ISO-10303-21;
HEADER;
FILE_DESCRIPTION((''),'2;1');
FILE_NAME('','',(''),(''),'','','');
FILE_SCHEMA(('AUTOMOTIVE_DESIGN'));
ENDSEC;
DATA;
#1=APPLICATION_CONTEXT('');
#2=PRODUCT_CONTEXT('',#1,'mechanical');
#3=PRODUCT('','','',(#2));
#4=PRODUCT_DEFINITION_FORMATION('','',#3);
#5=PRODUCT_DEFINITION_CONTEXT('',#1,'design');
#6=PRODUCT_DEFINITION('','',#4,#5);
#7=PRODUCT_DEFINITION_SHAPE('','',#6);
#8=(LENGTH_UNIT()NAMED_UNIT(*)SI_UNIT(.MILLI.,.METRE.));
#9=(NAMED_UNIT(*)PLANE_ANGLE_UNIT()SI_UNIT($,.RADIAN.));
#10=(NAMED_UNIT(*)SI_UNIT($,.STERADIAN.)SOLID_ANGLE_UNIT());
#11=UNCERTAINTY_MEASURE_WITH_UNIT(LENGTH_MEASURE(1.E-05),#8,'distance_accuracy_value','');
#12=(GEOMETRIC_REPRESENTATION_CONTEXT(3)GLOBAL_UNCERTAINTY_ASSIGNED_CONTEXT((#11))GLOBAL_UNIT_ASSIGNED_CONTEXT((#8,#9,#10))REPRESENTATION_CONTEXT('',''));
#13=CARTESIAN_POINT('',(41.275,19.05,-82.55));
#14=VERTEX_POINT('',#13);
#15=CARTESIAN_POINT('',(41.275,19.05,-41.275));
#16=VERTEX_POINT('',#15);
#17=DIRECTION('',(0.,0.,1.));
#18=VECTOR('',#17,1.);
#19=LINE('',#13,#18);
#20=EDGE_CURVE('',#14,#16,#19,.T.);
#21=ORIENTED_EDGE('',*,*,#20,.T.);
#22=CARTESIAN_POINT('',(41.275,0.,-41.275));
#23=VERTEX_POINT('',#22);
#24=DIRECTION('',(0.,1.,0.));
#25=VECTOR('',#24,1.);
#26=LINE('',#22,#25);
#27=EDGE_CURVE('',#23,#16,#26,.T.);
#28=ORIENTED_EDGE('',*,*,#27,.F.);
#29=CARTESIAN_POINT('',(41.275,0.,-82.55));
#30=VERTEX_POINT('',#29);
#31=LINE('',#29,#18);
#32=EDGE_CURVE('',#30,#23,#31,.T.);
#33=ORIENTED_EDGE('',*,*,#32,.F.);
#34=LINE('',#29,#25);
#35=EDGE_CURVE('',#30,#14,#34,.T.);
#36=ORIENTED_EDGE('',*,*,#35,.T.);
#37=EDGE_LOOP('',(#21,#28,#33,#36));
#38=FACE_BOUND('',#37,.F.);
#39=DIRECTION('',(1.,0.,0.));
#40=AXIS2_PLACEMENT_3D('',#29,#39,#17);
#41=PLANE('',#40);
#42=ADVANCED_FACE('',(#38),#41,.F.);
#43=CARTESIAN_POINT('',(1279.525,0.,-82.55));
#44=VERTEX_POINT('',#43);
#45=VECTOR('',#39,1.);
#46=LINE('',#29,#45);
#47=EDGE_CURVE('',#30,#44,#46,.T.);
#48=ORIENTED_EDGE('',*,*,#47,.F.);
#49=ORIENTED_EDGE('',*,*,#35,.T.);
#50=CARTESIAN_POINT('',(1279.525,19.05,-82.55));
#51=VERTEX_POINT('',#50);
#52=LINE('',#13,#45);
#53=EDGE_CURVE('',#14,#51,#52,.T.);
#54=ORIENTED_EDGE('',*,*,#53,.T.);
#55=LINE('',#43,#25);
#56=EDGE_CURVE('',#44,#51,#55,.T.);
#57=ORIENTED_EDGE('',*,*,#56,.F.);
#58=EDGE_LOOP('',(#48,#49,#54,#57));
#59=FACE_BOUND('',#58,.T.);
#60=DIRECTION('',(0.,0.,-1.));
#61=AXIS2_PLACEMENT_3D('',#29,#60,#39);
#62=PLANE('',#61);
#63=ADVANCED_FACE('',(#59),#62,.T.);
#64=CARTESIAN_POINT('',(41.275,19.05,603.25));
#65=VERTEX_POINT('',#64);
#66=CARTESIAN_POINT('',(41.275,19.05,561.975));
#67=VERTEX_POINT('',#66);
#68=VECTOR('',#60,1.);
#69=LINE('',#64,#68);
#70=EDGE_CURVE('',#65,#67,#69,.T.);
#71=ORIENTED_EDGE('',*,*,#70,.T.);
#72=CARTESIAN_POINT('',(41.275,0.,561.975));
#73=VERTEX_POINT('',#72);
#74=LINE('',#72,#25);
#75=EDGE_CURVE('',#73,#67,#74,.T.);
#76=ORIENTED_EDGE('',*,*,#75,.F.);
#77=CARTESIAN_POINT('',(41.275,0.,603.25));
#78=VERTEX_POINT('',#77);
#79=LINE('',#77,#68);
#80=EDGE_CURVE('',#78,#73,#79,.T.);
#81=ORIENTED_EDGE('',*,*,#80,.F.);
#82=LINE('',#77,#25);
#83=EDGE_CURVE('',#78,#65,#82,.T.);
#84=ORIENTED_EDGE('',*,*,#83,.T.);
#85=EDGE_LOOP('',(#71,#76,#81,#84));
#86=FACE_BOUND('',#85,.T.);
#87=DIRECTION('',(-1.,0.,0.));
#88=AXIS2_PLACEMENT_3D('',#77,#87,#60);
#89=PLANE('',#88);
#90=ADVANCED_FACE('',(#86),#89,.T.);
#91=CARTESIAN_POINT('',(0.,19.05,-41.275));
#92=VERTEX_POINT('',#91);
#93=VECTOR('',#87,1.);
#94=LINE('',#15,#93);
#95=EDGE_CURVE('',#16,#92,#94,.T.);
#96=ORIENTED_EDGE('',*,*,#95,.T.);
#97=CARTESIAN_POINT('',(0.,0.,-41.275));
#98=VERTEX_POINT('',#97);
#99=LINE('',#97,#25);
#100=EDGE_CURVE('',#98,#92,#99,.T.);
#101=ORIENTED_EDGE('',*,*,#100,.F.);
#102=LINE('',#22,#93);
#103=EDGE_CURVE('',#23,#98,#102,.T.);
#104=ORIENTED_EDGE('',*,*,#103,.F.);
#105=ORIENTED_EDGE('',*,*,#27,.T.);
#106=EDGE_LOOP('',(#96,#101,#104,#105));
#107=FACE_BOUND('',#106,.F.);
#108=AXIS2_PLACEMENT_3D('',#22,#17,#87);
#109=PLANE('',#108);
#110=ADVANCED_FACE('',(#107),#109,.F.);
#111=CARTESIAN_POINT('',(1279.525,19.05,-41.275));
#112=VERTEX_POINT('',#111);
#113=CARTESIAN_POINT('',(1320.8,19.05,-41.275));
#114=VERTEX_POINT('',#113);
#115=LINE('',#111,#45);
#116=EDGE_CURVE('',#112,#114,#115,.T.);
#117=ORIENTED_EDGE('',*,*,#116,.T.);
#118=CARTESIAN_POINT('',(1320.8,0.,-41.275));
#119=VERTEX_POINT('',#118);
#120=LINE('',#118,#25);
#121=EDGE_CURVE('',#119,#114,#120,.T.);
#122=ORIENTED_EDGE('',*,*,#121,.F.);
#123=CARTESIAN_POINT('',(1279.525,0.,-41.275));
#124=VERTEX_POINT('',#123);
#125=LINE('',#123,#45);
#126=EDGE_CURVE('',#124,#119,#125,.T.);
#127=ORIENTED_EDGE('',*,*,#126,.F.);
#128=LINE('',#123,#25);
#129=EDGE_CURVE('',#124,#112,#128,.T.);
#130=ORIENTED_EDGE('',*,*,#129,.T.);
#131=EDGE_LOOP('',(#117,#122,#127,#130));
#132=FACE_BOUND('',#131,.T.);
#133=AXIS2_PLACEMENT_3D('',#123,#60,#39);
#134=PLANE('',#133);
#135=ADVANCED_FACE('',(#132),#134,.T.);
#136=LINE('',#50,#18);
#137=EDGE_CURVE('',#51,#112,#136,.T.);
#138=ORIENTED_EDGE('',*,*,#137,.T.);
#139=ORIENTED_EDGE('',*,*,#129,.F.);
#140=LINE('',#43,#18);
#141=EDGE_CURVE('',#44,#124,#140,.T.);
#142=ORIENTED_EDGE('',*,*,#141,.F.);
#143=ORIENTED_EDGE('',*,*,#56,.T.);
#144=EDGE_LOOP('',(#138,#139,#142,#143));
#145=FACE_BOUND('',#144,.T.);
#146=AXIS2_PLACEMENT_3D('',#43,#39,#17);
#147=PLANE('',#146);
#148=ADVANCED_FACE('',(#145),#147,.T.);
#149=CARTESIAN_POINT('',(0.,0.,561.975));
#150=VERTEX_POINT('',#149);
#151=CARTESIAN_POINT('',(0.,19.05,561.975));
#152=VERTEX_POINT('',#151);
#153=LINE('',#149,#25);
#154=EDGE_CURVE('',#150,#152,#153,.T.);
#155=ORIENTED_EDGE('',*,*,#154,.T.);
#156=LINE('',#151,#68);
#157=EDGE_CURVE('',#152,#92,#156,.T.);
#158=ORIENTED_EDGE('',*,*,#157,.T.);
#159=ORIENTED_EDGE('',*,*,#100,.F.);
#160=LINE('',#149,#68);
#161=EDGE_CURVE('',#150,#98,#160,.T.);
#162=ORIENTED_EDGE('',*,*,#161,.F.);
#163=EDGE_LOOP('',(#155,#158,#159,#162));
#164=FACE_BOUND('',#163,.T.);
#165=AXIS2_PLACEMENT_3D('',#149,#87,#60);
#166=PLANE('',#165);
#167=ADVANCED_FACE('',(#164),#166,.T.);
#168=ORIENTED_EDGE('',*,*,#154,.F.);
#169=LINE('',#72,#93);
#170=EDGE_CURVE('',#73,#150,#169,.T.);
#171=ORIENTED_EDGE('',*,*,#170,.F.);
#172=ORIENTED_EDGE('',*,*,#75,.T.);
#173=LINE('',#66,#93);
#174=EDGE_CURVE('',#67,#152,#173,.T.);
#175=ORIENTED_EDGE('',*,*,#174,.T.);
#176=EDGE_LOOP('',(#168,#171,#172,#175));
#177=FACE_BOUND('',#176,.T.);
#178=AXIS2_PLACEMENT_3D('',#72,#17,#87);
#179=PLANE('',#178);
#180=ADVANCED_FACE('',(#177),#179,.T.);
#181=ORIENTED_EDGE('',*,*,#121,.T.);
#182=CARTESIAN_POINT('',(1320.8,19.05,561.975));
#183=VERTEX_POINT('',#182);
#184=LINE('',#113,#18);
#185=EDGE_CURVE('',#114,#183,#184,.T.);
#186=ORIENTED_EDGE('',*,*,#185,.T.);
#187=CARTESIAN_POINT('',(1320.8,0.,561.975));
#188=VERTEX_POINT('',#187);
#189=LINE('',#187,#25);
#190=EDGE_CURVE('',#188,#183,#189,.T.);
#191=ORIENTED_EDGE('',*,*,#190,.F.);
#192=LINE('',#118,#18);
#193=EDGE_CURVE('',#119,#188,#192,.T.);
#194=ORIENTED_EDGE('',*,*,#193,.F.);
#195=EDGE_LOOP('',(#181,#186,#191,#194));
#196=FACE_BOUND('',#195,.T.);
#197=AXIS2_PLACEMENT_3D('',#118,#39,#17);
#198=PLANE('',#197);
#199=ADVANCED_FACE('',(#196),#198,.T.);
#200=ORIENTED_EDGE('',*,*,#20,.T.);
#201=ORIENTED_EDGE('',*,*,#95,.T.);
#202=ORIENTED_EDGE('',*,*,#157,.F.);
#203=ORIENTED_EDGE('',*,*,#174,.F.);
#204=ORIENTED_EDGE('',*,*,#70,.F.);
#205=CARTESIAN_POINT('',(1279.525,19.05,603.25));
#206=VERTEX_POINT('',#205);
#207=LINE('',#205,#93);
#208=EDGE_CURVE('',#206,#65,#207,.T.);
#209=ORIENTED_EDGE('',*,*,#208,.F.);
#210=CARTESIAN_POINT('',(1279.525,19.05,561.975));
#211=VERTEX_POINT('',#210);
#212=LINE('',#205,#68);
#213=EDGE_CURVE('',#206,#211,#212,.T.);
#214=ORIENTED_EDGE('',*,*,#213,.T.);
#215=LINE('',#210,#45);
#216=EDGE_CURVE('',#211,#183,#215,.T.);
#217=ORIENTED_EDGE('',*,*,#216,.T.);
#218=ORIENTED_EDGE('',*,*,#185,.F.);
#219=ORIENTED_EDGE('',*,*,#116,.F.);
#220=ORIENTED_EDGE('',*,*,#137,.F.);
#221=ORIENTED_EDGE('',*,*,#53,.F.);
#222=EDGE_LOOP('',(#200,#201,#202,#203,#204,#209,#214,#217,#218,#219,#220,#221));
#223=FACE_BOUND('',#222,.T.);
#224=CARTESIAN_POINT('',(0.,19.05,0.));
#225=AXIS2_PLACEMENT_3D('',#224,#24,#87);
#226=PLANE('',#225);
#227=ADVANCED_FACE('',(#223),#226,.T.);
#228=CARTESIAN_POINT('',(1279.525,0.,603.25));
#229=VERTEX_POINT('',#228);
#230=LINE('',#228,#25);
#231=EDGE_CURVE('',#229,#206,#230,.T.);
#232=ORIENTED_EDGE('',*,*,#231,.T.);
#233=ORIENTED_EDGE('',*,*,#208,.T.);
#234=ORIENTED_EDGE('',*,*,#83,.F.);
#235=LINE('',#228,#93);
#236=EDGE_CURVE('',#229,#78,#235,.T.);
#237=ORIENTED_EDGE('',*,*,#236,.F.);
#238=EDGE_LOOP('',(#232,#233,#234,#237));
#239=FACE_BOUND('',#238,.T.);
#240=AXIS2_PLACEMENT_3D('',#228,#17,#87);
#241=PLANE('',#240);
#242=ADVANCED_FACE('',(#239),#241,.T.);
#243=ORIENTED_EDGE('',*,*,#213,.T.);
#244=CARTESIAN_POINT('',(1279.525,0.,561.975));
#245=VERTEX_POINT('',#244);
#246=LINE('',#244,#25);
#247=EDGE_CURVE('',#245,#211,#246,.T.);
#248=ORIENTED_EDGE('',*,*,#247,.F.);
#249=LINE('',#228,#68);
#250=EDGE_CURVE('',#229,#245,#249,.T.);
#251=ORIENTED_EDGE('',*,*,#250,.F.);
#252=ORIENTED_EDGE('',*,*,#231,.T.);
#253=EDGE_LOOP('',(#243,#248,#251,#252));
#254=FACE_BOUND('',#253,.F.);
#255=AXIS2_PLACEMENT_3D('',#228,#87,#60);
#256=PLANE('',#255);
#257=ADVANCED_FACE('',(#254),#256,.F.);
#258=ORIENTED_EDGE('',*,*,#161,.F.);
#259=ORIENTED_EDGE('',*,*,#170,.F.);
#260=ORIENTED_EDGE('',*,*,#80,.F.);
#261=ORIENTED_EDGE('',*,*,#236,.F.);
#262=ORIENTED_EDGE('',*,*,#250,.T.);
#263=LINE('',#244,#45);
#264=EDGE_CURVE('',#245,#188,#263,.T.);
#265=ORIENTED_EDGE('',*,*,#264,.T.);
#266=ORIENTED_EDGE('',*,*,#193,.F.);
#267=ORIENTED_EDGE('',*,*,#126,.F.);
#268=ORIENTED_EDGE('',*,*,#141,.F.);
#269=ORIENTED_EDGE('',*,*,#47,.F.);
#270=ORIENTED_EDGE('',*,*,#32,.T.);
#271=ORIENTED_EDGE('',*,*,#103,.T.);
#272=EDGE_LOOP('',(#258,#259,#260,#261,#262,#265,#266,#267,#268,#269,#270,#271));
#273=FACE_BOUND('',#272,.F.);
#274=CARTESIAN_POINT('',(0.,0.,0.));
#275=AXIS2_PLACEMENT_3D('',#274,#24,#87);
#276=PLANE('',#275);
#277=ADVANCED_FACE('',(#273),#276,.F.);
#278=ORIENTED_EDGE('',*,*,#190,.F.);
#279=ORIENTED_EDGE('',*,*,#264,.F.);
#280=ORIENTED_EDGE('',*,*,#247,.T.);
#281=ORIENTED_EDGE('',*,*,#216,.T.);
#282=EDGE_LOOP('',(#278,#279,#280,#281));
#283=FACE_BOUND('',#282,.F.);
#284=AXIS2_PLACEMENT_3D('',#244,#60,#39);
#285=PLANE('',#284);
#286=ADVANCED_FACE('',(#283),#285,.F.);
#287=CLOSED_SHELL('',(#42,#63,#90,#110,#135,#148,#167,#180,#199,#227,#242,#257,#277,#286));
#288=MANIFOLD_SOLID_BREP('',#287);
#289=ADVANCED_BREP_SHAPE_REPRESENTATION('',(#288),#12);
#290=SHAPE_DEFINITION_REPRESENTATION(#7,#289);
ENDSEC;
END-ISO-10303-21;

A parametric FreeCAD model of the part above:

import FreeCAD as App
import Part
import Sketcher

V = App.Vector
Q = App.Units.Quantity

doc = App.newDocument("Part")
body = doc.addObject("PartDesign::Body", "Body")

# Sketch on XZ plane
sketch1 = body.newObject("Sketcher::SketchObject", "Sketch")
sketch1.AttachmentSupport = (doc.getObject("XZ_Plane"), [""])
sketch1.MapMode = "FlatFace"
sketch1.addGeometry([
    Part.LineSegment(V(1280, -83, 0), V(41, -83, 0)),  # 0
    Part.LineSegment(V(41, -83, 0), V(41, -41, 0)),  # 1
    Part.LineSegment(V(41, -41, 0), V(0, -41, 0)),  # 2
    Part.LineSegment(V(0, -41, 0), V(0, 562, 0)),  # 3
    Part.LineSegment(V(0, 562, 0), V(41, 562, 0)),  # 4
    Part.LineSegment(V(41, 562, 0), V(41, 603, 0)),  # 5
    Part.LineSegment(V(41, 603, 0), V(1280, 603, 0)),  # 6
    Part.LineSegment(V(1280, 603, 0), V(1280, 562, 0)),  # 7
    Part.LineSegment(V(1280, 562, 0), V(1321, 562, 0)),  # 8
    Part.LineSegment(V(1321, 562, 0), V(1321, -41, 0)),  # 9
    Part.LineSegment(V(1321, -41, 0), V(1280, -41, 0)),  # 10
    Part.LineSegment(V(1280, -41, 0), V(1280, -83, 0)),  # 11
], False)
sketch1.addConstraint([
    Sketcher.Constraint("Coincident", 0, 2, 1, 1),
    Sketcher.Constraint("Coincident", 1, 2, 2, 1),
    Sketcher.Constraint("Coincident", 2, 2, 3, 1),
    Sketcher.Constraint("Coincident", 3, 2, 4, 1),
    Sketcher.Constraint("Coincident", 4, 2, 5, 1),
    Sketcher.Constraint("Coincident", 5, 2, 6, 1),
    Sketcher.Constraint("Coincident", 6, 2, 7, 1),
    Sketcher.Constraint("Coincident", 7, 2, 8, 1),
    Sketcher.Constraint("Coincident", 8, 2, 9, 1),
    Sketcher.Constraint("Coincident", 9, 2, 10, 1),
    Sketcher.Constraint("Coincident", 10, 2, 11, 1),
    Sketcher.Constraint("Coincident", 11, 2, 0, 1),
    Sketcher.Constraint("Horizontal", 0),
    Sketcher.Constraint("Vertical", 1),
    Sketcher.Constraint("Horizontal", 2),
    Sketcher.Constraint("Vertical", 3),
    Sketcher.Constraint("Horizontal", 4),
    Sketcher.Constraint("Vertical", 5),
    Sketcher.Constraint("Horizontal", 6),
    Sketcher.Constraint("Vertical", 7),
    Sketcher.Constraint("Horizontal", 8),
    Sketcher.Constraint("Vertical", 9),
    Sketcher.Constraint("Horizontal", 10),
    Sketcher.Constraint("Vertical", 11),
    Sketcher.Constraint("PointOnObject", 2, 2, -2),
    Sketcher.Constraint("Horizontal", 4, 2, 7, 2),
    Sketcher.Constraint("Horizontal", 2, 2, 9, 2),
    Sketcher.Constraint("Vertical", 1, 2, 4, 2),
    Sketcher.Constraint("Vertical", 7, 2, 10, 2),
    Sketcher.Constraint("Equal", 4, 8),
    Sketcher.Constraint("Equal", 10, 1),
    Sketcher.Constraint("Equal", 1, 5),
    Sketcher.Constraint("DistanceY", 0, 2, 5, 2, Q("27 in")),
    Sketcher.Constraint("DistanceX", 2, 2, 2, 1, Q("1.625 in")),
    Sketcher.Constraint("DistanceY", 1, 2, -1, 1, Q("1.625 in")),
    Sketcher.Constraint("DistanceX", -1, 1, 8, 2, Q("52 in")),
])
pad1 = body.newObject("PartDesign::Pad", "Pad")
pad1.Profile = sketch1
pad1.Length = Q("0.75 in")
pad1.Reversed = True

doc.recompute()
